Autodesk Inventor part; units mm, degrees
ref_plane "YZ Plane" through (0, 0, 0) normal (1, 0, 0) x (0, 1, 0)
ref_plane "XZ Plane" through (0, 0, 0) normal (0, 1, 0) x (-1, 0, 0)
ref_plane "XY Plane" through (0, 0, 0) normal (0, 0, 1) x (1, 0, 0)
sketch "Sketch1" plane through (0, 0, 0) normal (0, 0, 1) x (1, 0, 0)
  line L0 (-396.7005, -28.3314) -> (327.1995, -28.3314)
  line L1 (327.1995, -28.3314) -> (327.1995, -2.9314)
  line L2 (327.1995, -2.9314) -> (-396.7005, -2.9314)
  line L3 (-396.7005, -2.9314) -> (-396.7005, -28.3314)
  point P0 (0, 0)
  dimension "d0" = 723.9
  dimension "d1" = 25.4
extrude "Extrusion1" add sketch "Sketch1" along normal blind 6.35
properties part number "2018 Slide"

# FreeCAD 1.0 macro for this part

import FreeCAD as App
import Part
import Sketcher

V = App.Vector
Q = App.Units.Quantity

doc = App.newDocument("Part")
params = doc.addObject("Spreadsheet::Sheet", "Params")
for row, (alias, value) in enumerate([
    ("sketch1_height", "1 in"),
    ("sketch1_width", "28.5 in"),
    ("pad1_length", "0.25 in"),
], start=1):
    params.set(f"A{row}", alias)
    params.set(f"B{row}", "=" + value)
    params.setAlias(f"B{row}", alias)

body = doc.addObject("PartDesign::Body", "Body")

sketch1 = body.newObject("Sketcher::SketchObject", "Sketch")
sketch1.AttachmentSupport = (doc.getObject("XY_Plane"), [""])
sketch1.MapMode = "FlatFace"
sketch1.addGeometry([
    Part.LineSegment(V(-397, -3, 0), V(-397, -28, 0)),
    Part.LineSegment(V(-397, -28, 0), V(327, -28, 0)),
    Part.LineSegment(V(327, -28, 0), V(327, -3, 0)),
    Part.LineSegment(V(327, -3, 0), V(-397, -3, 0)),
], False)
sketch1.addConstraint([
    Sketcher.Constraint("Coincident", 0, 2, 1, 1),
    Sketcher.Constraint("Coincident", 1, 2, 2, 1),
    Sketcher.Constraint("Coincident", 2, 2, 3, 1),
    Sketcher.Constraint("Coincident", 3, 2, 0, 1),
    Sketcher.Constraint("Vertical", 0),
    Sketcher.Constraint("Horizontal", 1),
    Sketcher.Constraint("Vertical", 2),
    Sketcher.Constraint("Horizontal", 3),
    Sketcher.Constraint("DistanceY", 0, 2, 0, 1, Q("1 in")),
    Sketcher.Constraint("DistanceX", 1, 1, 1, 2, Q("28.5 in")),
    Sketcher.Constraint("DistanceY", 0, 2, -1, 1, Q("1.1154 in")),
    Sketcher.Constraint("DistanceX", 0, 2, -1, 1, 396.7005),
])
sketch1.setExpression("Constraints[8]", "Params.sketch1_height")
sketch1.setExpression("Constraints[9]", "Params.sketch1_width")
pad1 = body.newObject("PartDesign::Pad", "Pad")
pad1.Profile = sketch1
pad1.setExpression("Length", "Params.pad1_length")

doc.recompute()
